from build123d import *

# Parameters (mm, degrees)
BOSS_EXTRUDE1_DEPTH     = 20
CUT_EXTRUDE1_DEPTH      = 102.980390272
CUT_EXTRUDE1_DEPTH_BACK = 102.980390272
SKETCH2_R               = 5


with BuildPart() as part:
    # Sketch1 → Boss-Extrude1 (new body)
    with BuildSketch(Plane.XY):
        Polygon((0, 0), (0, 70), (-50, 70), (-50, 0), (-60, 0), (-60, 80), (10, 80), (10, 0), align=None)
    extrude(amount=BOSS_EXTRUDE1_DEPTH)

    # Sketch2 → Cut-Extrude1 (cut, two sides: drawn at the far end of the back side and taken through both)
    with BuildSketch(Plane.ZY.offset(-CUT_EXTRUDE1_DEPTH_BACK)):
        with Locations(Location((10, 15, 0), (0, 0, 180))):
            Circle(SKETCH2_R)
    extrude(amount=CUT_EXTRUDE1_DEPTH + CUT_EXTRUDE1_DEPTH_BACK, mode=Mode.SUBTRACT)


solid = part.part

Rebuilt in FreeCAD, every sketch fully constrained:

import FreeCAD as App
import Part
import Sketcher
from FreeCAD import Vector

doc = App.newDocument("Part")
body = doc.addObject("PartDesign::Body", "Body")

sketch1 = body.newObject("Sketcher::SketchObject", "Sketch")
sketch1.AttachmentSupport = (doc.getObject("XY_Plane"), [""])
sketch1.MapMode = "FlatFace"
sketch1.addGeometry([
    Part.LineSegment(Vector(0, 70, 0), Vector(0, 0, 0)),
    Part.LineSegment(Vector(0, 0, 0), Vector(10, 0, 0)),
    Part.LineSegment(Vector(10, 0, 0), Vector(10, 80, 0)),
    Part.LineSegment(Vector(10, 80, 0), Vector(-60, 80, 0)),
    Part.LineSegment(Vector(-60, 80, 0), Vector(-60, 0, 0)),
    Part.LineSegment(Vector(-60, 0, 0), Vector(-50, 0, 0)),
    Part.LineSegment(Vector(-50, 0, 0), Vector(-50, 70, 0)),
    Part.LineSegment(Vector(-50, 70, 0), Vector(0, 70, 0)),
], False)
sketch1.addConstraint([
    Sketcher.Constraint("Coincident", 0, 2, 1, 1),
    Sketcher.Constraint("Coincident", 1, 2, 2, 1),
    Sketcher.Constraint("Coincident", 2, 2, 3, 1),
    Sketcher.Constraint("Coincident", 3, 2, 4, 1),
    Sketcher.Constraint("Coincident", 4, 2, 5, 1),
    Sketcher.Constraint("Coincident", 5, 2, 6, 1),
    Sketcher.Constraint("Coincident", 6, 2, 7, 1),
    Sketcher.Constraint("Coincident", 7, 2, 0, 1),
    Sketcher.Constraint("Vertical", 0),
    Sketcher.Constraint("Horizontal", 1),
    Sketcher.Constraint("Vertical", 2),
    Sketcher.Constraint("Horizontal", 3),
    Sketcher.Constraint("Vertical", 4),
    Sketcher.Constraint("Horizontal", 5),
    Sketcher.Constraint("Vertical", 6),
    Sketcher.Constraint("Horizontal", 7),
    Sketcher.Constraint("Coincident", 0, 2, -1, 1),
    Sketcher.Constraint("PointOnObject", 4, 2, -1),
    Sketcher.Constraint("Equal", 1, 5),
    Sketcher.Constraint("Equal", 3, 0),
    Sketcher.Constraint("DistanceX", 1, 1, 1, 2, 10.0),
    Sketcher.Constraint("DistanceX", 3, 2, 3, 1, 70.0),
    Sketcher.Constraint("DistanceY", 2, 1, 2, 2, 80.0),
])
pad1 = body.newObject("PartDesign::Pad", "Pad")
pad1.Profile = sketch1
pad1.Length = 20

sketch2 = body.newObject("Sketcher::SketchObject", "Sketch001")
sketch2.AttachmentSupport = (doc.getObject("YZ_Plane"), [""])
sketch2.MapMode = "FlatFace"
sketch2.addGeometry(Part.Circle(Vector(15, 10, 0), Vector(0, 0, 1), 5), False)
sketch2.addConstraint([
    Sketcher.Constraint("Diameter", 0, 10.0),
    Sketcher.Constraint("DistanceX", -1, 1, 0, 3, 15.0),
    Sketcher.Constraint("DistanceY", -1, 1, 0, 3, 10.0),
])
pocket1 = body.newObject("PartDesign::Pocket", "Pocket")
pocket1.Profile = sketch2
pocket1.Type = "ThroughAll"
pocket1.Midplane = True

doc.recompute()
